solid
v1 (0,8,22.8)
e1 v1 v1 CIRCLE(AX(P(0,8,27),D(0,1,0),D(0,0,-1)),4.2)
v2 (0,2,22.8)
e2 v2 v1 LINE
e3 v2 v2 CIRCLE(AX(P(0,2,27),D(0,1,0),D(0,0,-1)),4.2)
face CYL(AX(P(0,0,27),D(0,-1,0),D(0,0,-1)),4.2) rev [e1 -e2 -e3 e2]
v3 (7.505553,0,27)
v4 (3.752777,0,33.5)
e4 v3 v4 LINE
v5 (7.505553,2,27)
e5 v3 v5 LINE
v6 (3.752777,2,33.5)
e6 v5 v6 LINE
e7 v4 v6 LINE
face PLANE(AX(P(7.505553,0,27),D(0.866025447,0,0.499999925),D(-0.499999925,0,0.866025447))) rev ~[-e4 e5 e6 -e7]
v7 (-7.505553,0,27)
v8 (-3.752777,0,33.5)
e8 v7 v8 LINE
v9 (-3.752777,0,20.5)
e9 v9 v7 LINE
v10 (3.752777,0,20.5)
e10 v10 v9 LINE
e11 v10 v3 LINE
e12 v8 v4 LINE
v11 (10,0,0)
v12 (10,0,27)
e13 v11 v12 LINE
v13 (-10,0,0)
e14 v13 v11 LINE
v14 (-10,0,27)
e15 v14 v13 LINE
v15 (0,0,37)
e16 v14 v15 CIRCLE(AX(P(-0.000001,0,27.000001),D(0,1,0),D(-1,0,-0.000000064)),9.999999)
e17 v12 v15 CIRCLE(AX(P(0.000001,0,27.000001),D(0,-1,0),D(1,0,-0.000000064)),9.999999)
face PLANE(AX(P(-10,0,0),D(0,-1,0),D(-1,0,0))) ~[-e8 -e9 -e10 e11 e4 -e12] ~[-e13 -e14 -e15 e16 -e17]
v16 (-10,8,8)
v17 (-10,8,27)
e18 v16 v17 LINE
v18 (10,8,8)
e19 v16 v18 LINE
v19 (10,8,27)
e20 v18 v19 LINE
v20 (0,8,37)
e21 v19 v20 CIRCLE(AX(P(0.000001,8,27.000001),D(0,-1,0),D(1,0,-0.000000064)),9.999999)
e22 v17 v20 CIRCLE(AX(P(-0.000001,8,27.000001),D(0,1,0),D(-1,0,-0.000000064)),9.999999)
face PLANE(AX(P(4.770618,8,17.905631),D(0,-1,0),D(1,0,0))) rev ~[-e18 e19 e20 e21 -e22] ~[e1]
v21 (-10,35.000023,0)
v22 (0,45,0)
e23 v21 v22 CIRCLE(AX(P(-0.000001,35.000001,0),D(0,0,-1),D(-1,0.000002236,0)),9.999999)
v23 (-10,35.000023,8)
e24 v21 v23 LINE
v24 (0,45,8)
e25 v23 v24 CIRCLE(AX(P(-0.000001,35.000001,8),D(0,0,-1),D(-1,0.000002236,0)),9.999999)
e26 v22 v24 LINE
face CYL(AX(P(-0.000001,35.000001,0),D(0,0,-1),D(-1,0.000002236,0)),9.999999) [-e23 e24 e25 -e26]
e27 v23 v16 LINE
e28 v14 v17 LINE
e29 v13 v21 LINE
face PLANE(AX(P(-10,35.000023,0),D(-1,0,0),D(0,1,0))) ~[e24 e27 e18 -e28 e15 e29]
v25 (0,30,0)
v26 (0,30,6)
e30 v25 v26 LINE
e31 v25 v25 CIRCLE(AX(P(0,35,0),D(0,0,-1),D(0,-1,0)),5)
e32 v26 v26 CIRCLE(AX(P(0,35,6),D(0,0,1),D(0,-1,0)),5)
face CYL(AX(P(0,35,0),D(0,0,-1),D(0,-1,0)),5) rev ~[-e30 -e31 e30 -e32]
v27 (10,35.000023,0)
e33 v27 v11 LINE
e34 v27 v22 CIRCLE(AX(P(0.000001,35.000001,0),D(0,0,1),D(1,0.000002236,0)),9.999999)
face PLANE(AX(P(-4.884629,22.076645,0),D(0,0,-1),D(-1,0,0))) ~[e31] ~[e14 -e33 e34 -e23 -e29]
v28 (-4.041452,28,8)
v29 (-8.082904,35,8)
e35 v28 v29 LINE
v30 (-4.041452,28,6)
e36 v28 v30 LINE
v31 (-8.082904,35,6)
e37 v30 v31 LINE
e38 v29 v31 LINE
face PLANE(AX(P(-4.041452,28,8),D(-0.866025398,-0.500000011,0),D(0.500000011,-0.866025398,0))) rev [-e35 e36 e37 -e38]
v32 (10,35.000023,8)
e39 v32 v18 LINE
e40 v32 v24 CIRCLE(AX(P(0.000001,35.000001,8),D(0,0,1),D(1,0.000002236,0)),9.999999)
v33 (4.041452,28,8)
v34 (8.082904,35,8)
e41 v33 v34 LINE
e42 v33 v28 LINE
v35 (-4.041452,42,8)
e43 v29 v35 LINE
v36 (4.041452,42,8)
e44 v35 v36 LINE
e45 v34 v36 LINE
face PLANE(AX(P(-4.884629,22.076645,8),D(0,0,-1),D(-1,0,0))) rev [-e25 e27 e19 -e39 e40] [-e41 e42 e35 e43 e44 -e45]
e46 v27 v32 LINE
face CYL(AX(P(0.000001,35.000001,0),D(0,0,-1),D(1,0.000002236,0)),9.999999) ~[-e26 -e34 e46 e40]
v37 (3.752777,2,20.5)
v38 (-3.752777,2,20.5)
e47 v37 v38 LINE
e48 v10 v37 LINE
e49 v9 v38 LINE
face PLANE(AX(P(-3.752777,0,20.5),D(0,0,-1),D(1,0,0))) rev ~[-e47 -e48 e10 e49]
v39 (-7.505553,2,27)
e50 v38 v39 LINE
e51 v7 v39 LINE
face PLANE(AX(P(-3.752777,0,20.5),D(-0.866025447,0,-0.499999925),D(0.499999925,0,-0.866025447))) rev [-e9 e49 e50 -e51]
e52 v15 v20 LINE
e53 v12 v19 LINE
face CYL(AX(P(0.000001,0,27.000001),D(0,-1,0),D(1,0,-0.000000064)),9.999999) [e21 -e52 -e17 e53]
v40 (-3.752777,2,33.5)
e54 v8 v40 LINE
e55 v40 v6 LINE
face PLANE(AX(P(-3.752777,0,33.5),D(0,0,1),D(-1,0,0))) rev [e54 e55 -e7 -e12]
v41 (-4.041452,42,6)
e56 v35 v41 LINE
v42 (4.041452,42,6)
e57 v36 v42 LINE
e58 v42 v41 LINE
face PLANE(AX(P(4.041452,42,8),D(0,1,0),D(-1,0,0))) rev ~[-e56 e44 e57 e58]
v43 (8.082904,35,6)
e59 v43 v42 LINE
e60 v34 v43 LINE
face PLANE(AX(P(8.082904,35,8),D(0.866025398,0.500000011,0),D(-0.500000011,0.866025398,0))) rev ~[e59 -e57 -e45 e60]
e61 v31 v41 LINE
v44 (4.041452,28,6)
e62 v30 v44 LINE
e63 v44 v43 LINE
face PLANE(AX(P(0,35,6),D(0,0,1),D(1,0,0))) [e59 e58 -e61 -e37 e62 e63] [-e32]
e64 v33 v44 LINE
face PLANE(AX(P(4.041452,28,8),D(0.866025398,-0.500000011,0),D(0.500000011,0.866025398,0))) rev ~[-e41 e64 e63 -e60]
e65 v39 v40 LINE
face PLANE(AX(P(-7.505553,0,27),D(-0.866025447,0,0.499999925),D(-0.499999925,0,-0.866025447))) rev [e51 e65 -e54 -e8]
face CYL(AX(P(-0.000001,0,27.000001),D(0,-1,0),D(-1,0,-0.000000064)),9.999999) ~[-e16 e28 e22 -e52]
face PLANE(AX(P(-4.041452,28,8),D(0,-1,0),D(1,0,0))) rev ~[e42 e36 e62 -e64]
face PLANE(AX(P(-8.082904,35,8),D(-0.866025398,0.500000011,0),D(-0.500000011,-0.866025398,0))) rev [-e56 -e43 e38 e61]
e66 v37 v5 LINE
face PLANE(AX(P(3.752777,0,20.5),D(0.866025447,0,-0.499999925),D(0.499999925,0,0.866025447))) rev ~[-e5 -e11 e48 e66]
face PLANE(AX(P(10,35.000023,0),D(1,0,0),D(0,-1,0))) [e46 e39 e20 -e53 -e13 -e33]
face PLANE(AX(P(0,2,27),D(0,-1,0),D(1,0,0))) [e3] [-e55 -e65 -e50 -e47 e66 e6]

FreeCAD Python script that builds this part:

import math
import FreeCAD as App
import Part
import Sketcher
Q = App.Units.Quantity


def add_polygon(sketch, points):
    """Adds a closed chain of lines whose ends are joined by coincident constraints."""
    first, n = sketch.GeometryCount, len(points)
    for a, b in zip(points, points[1:] + points[:1]):
        sketch.addGeometry(Part.LineSegment(App.Vector(*a, 0), App.Vector(*b, 0)), False)
    for i in range(n):
        sketch.addConstraint(Sketcher.Constraint("Coincident", first + i, 2, first + (i + 1) % n, 1))

doc = App.newDocument("Part")
body = doc.addObject("PartDesign::Body", "Body")

sketch1 = body.newObject("Sketcher::SketchObject", "Sketch")
sketch1.AttachmentSupport = (doc.getObject("XY_Plane"), [""])
sketch1.MapMode = "FlatFace"
sketch1.addGeometry([
    Part.ArcOfCircle(Part.Circle(App.Vector(0, 35, 0), App.Vector(0, 0, 1), 5), math.radians(-90), math.radians(90)),
    Part.LineSegment(App.Vector(0, 30, 0), App.Vector(0, 0, 0)),
    Part.LineSegment(App.Vector(0, 0, 0), App.Vector(10, 0, 0)),
    Part.LineSegment(App.Vector(10, 0, 0), App.Vector(10, 35, 0)),
    Part.ArcOfCircle(Part.Circle(App.Vector(0, 35, 0), App.Vector(0, 0, 1), 10), math.radians(0), math.radians(90)),
    Part.LineSegment(App.Vector(0, 45, 0), App.Vector(0, 40, 0)),
], False)
sketch1.addConstraint([
    Sketcher.Constraint("Coincident", 0, 1, 1, 1),
    Sketcher.Constraint("Coincident", 1, 2, 2, 1),
    Sketcher.Constraint("Coincident", 2, 2, 3, 1),
    Sketcher.Constraint("Coincident", 3, 2, 4, 1),
    Sketcher.Constraint("Coincident", 4, 2, 5, 1),
    Sketcher.Constraint("Coincident", 5, 2, 0, 2),
    Sketcher.Constraint("Vertical", 1),
    Sketcher.Constraint("Horizontal", 2),
    Sketcher.Constraint("Vertical", 3),
    Sketcher.Constraint("Vertical", 5),
    Sketcher.Constraint("Coincident", 1, 2, -1, 1),
    Sketcher.Constraint("Coincident", 4, 3, 0, 3),
    Sketcher.Constraint("PointOnObject", 0, 3, -2),
    Sketcher.Constraint("PointOnObject", 4, 2, -2),
    Sketcher.Constraint("Radius", 0, 5.0),
    Sketcher.Constraint("Radius", 4, 9.999999),
    Sketcher.Constraint("DistanceY", 1, 2, 1, 1, 30.0),
    Sketcher.Constraint("DistanceY", 3, 1, 3, 2, 35.000023),
])
pad1 = body.newObject("PartDesign::Pad", "Pad")
pad1.Profile = sketch1
pad1.Length = 8

sketch2 = body.newObject("Sketcher::SketchObject", "Sketch001")
sketch2.AttachmentSupport = (doc.getObject("XZ_Plane"), [""])
sketch2.MapMode = "FlatFace"
sketch2.addGeometry([
    Part.LineSegment(App.Vector(0, 0, 0), App.Vector(10, 0, 0)),
    Part.LineSegment(App.Vector(10, 0, 0), App.Vector(10, 27, 0)),
    Part.ArcOfCircle(Part.Circle(App.Vector(0, 27, 0), App.Vector(0, 0, 1), 10), math.radians(0), math.radians(90)),
    Part.LineSegment(App.Vector(0, 37, 0), App.Vector(0, 31.2, 0)),
    Part.ArcOfCircle(Part.Circle(App.Vector(0, 27, 0), App.Vector(0, 0, 1), 4.2), math.radians(-90), math.radians(90)),
    Part.LineSegment(App.Vector(0, 22.8, 0), App.Vector(0, 0, 0)),
], False)
sketch2.addConstraint([
    Sketcher.Constraint("Coincident", 0, 2, 1, 1),
    Sketcher.Constraint("Tangent", 1, 2, 2, 1),
    Sketcher.Constraint("Coincident", 2, 2, 3, 1),
    Sketcher.Constraint("Coincident", 3, 2, 4, 2),
    Sketcher.Constraint("Coincident", 4, 1, 5, 1),
    Sketcher.Constraint("Coincident", 5, 2, 0, 1),
    Sketcher.Constraint("Horizontal", 0),
    Sketcher.Constraint("Vertical", 1),
    Sketcher.Constraint("Vertical", 3),
    Sketcher.Constraint("Vertical", 5),
    Sketcher.Constraint("Coincident", 5, 2, -1, 1),
    Sketcher.Constraint("Coincident", 4, 3, 2, 3),
    Sketcher.Constraint("PointOnObject", 2, 3, -2),
    Sketcher.Constraint("PointOnObject", 2, 2, -2),
    Sketcher.Constraint("Radius", 2, 9.999999),
    Sketcher.Constraint("Radius", 4, 4.2),
    Sketcher.Constraint("DistanceY", 1, 1, 1, 2, 27.0),
])
pad2 = body.newObject("PartDesign::Pad", "Pad001")
pad2.Profile = sketch2
pad2.Length = 8
pad2.Reversed = True

sketch3 = body.newObject("Sketcher::SketchObject", "Sketch002")
sketch3.AttachmentSupport = (doc.getObject("XY_Plane"), [""])
sketch3.MapMode = "FlatFace"
sketch3.AttachmentOffset = App.Placement(App.Vector(0, 0, 8), App.Rotation())
add_polygon(sketch3, [(8, 35), (4, 42), (-4, 42), (-8, 35), (-4, 28), (4, 28)])
sketch3.addConstraint([
    Sketcher.Constraint("Horizontal", 1),
    Sketcher.Constraint("Horizontal", 4),
    Sketcher.Constraint("Symmetric", 2, 2, 5, 2, -2),
    Sketcher.Constraint("Parallel", 0, 3),
    Sketcher.Constraint("Parallel", 2, 5),
    Sketcher.Constraint("Vertical", 1, 2, 3, 2),
    Sketcher.Constraint("Vertical", 0, 2, 4, 2),
    Sketcher.Constraint("Angle", 0, Q("120.000001 deg")),
    Sketcher.Constraint("DistanceY", -1, 1, 0, 2, 42.0),
    Sketcher.Constraint("DistanceY", -1, 1, 2, 2, 35.0),
    Sketcher.Constraint("DistanceX", 1, 2, 1, 1, 8.082904),
])
pocket1 = body.newObject("PartDesign::Pocket", "Pocket")
pocket1.Profile = sketch3
pocket1.Length = 2

sketch4 = body.newObject("Sketcher::SketchObject", "Sketch003")
sketch4.AttachmentSupport = (doc.getObject("XZ_Plane"), [""])
sketch4.MapMode = "FlatFace"
add_polygon(sketch4, [(4, 34), (-4, 34), (-8, 27), (-4, 20), (4, 20), (8, 27)])
sketch4.addConstraint([
    Sketcher.Constraint("Horizontal", 0),
    Sketcher.Constraint("Horizontal", 3),
    Sketcher.Constraint("Symmetric", 1, 2, 4, 2, -2),
    Sketcher.Constraint("Parallel", 1, 4),
    Sketcher.Constraint("Parallel", 2, 5),
    Sketcher.Constraint("Vertical", 0, 2, 2, 2),
    Sketcher.Constraint("Vertical", 3, 2, 5, 2),
    Sketcher.Constraint("Angle", 1, Q("-119.999995 deg")),
    Sketcher.Constraint("DistanceY", -1, 1, 1, 2, 27.0),
    Sketcher.Constraint("DistanceY", 2, 2, 0, 2, 13.0),
    Sketcher.Constraint("DistanceX", 0, 2, 0, 1, 7.505554),
])
pocket2 = body.newObject("PartDesign::Pocket", "Pocket001")
pocket2.Profile = sketch4
pocket2.Length = 2
doc.recompute()

mirrored = body.newObject("PartDesign::Mirrored", "Mirrored")
mirrored.Originals = [pad1, pad2, pocket1, pocket2]
mirrored.MirrorPlane = (doc.getObject("YZ_Plane"), [""])
body.Tip = mirrored

doc.recompute()
